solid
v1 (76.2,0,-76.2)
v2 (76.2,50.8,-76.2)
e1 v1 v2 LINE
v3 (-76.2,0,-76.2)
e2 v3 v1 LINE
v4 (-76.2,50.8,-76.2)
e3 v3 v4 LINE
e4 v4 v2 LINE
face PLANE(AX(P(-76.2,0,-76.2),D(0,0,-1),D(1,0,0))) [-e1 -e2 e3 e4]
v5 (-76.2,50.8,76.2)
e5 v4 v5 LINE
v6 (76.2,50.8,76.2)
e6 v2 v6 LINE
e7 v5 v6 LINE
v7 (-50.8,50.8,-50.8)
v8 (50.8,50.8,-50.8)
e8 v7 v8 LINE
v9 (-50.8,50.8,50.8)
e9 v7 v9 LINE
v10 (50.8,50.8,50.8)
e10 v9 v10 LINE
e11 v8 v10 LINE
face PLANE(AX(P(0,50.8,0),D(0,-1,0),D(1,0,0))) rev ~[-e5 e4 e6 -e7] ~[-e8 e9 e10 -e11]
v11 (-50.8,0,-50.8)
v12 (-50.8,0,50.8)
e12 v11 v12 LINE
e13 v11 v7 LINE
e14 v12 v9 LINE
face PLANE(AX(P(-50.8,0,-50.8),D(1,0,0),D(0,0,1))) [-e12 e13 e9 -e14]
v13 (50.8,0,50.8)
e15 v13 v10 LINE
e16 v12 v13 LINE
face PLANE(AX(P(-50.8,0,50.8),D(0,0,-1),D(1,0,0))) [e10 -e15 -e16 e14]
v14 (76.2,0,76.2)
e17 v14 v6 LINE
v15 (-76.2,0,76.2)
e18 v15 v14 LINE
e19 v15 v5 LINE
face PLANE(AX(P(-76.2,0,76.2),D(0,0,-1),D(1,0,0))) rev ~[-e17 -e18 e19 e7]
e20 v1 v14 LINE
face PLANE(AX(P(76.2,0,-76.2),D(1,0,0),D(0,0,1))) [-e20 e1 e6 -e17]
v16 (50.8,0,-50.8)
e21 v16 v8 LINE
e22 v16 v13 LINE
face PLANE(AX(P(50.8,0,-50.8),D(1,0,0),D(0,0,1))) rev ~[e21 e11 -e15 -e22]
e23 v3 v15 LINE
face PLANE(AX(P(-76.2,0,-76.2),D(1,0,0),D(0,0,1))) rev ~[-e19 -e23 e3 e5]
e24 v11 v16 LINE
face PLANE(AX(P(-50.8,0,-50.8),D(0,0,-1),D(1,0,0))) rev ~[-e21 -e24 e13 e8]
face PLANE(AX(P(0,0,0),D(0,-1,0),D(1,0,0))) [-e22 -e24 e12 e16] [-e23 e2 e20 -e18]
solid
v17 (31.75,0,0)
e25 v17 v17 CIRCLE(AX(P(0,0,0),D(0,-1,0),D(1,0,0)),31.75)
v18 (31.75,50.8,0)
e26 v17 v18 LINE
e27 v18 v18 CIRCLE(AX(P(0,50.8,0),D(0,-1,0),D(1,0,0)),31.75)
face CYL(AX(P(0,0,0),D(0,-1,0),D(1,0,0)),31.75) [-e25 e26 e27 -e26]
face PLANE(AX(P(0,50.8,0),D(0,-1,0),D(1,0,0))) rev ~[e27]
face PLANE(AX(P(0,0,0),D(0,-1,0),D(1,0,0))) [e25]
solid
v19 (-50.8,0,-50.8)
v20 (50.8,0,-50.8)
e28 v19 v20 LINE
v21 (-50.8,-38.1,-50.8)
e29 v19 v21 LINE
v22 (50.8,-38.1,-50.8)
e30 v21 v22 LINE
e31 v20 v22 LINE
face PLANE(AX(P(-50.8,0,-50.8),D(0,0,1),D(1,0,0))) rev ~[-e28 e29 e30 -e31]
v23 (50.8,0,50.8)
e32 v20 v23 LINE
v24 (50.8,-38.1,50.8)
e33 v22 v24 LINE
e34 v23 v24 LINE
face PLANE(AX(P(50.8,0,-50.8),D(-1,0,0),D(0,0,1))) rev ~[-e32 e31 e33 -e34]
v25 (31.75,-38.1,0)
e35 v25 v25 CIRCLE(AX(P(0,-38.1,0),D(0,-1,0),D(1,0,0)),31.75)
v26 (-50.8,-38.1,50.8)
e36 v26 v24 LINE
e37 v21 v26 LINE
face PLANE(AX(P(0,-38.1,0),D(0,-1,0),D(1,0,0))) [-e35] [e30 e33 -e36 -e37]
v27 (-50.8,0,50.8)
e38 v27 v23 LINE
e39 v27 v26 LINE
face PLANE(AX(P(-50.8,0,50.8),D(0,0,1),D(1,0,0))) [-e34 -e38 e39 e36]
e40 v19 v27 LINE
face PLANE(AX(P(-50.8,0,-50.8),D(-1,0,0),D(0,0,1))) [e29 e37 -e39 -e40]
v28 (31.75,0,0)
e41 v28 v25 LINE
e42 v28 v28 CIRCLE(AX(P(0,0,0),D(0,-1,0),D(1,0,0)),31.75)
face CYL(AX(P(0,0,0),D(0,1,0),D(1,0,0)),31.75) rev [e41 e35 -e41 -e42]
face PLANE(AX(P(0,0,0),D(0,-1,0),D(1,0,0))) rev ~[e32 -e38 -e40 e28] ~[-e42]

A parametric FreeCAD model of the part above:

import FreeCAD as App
import Part
import Sketcher

V = App.Vector
Q = App.Units.Quantity


def add_polygon(sketch, points):
    """Adds a closed chain of lines whose ends are joined by coincident constraints."""
    first, n = sketch.GeometryCount, len(points)
    for a, b in zip(points, points[1:] + points[:1]):
        sketch.addGeometry(Part.LineSegment(App.Vector(*a, 0), App.Vector(*b, 0)), False)
    for i in range(n):
        sketch.addConstraint(Sketcher.Constraint("Coincident", first + i, 2, first + (i + 1) % n, 1))

doc = App.newDocument("Part")
body = doc.addObject("PartDesign::Body", "Body")
body.AllowCompound = True

# Sketch on XZ plane
sketch1 = body.newObject("Sketcher::SketchObject", "Sketch")
sketch1.AttachmentSupport = (doc.getObject("XZ_Plane"), [""])
sketch1.MapMode = "FlatFace"
add_polygon(sketch1, [(-50.8, 50.8), (-50.8, -50.8), (50.8, -50.8), (50.8, 50.8)])  # lines 0-3
sketch1.addGeometry(Part.Circle(V(0, 0, 0), V(0, 0, 1), 31.75), False)  # 4
sketch1.addConstraint(Sketcher.Constraint("Vertical", 0))
sketch1.addConstraint(Sketcher.Constraint("Horizontal", 1))
sketch1.addConstraint(Sketcher.Constraint("Vertical", 2))
sketch1.addConstraint(Sketcher.Constraint("Horizontal", 3))
sketch1.addConstraint(Sketcher.Constraint("Coincident", 4, 3, -1, 1))
sketch1.addConstraint(Sketcher.Constraint("Symmetric", 0, 2, 2, 2, -1, 1))
sketch1.addConstraint(Sketcher.Constraint("Equal", 3, 0))
sketch1.addConstraint(Sketcher.Constraint("Diameter", 4, Q("2.5 in")))
sketch1.addConstraint(Sketcher.Constraint("DistanceX", 1, 1, 1, 2, Q("4 in")))
pad1 = body.newObject("PartDesign::Pad", "Pad")
pad1.Profile = sketch1
pad1.Length = Q("1.5 in")

# Sketch on XZ plane
sketch2 = body.newObject("Sketcher::SketchObject", "Sketch001")
sketch2.AttachmentSupport = (doc.getObject("XZ_Plane"), [""])
sketch2.MapMode = "FlatFace"
sketch2.addGeometry(Part.Circle(V(0, 0, 0), V(0, 0, 1), 31.75), False)
sketch2.addConstraint(Sketcher.Constraint("Coincident", 0, 3, -1, 1))
sketch2.addConstraint(Sketcher.Constraint("Diameter", 0, Q("2.5 in")))
pad2 = body.newObject("PartDesign::Pad", "Pad001")
pad2.Profile = sketch2
pad2.Length = Q("2 in")
pad2.Reversed = True
body2 = doc.addObject("PartDesign::Body", "Body001")

# Sketch on XZ plane
sketch3 = body2.newObject("Sketcher::SketchObject", "Sketch002")
sketch3.AttachmentSupport = (doc.getObject("XZ_Plane001"), [""])
sketch3.MapMode = "FlatFace"
add_polygon(sketch3, [(-76.2, 76.2), (-76.2, -76.2), (76.2, -76.2), (76.2, 76.2)])  # lines 0-3
add_polygon(sketch3, [(50.8, -50.8), (-50.8, -50.8), (-50.8, 50.8), (50.8, 50.8)])  # lines 4-7
sketch3.addConstraint(Sketcher.Constraint("Vertical", 0))
sketch3.addConstraint(Sketcher.Constraint("Horizontal", 1))
sketch3.addConstraint(Sketcher.Constraint("Vertical", 2))
sketch3.addConstraint(Sketcher.Constraint("Horizontal", 3))
sketch3.addConstraint(Sketcher.Constraint("Horizontal", 4))
sketch3.addConstraint(Sketcher.Constraint("Vertical", 5))
sketch3.addConstraint(Sketcher.Constraint("Horizontal", 6))
sketch3.addConstraint(Sketcher.Constraint("Vertical", 7))
sketch3.addConstraint(Sketcher.Constraint("Symmetric", 0, 2, 2, 2, -1, 1))
sketch3.addConstraint(Sketcher.Constraint("Symmetric", 4, 2, 6, 2, -1, 1))
sketch3.addConstraint(Sketcher.Constraint("Equal", 3, 0))
sketch3.addConstraint(Sketcher.Constraint("Equal", 6, 5))
sketch3.addConstraint(Sketcher.Constraint("DistanceX", 1, 1, 1, 2, Q("6 in")))
sketch3.addConstraint(Sketcher.Constraint("DistanceX", 4, 2, 4, 1, Q("4 in")))
pad3 = body2.newObject("PartDesign::Pad", "Pad002")
pad3.Profile = sketch3
pad3.Length = Q("2 in")
pad3.Reversed = True

doc.recompute()
